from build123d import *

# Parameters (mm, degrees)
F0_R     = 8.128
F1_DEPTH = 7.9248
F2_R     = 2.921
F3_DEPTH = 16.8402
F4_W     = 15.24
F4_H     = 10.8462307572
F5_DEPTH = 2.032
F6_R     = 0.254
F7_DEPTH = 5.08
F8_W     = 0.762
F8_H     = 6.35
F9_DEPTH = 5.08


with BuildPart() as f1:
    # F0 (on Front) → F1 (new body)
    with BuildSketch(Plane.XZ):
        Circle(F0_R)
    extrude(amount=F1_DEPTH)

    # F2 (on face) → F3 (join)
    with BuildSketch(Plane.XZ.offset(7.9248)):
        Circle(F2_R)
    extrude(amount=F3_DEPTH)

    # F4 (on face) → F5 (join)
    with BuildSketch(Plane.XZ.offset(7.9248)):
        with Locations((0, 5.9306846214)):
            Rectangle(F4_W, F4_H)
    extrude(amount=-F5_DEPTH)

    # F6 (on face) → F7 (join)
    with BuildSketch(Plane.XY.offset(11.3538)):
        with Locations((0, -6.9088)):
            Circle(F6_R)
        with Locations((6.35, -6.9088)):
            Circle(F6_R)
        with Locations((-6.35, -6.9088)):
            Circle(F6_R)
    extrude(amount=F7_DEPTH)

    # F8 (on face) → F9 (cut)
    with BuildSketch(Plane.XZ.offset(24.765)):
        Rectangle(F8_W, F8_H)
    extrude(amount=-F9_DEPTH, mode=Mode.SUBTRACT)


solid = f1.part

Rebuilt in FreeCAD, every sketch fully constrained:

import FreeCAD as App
import Part
import Sketcher
from FreeCAD import Vector
Q = App.Units.Quantity

doc = App.newDocument("Part")
body = doc.addObject("PartDesign::Body", "Body")

sketch1 = body.newObject("Sketcher::SketchObject", "Sketch")
sketch1.AttachmentSupport = (doc.getObject("XZ_Plane"), [""])
sketch1.MapMode = "FlatFace"
sketch1.addGeometry(Part.Circle(Vector(0, 0, 0), Vector(0, 0, 1), 8.128), False)
sketch1.addConstraint([
    Sketcher.Constraint("Coincident", 0, 3, -1, 1),
    Sketcher.Constraint("Diameter", 0, Q("0.64 in")),
])
pad1 = body.newObject("PartDesign::Pad", "Pad")
pad1.Profile = sketch1
pad1.Length = Q("0.312 in")

sketch2 = body.newObject("Sketcher::SketchObject", "Sketch001")
sketch2.AttachmentSupport = (doc.getObject("XZ_Plane"), [""])
sketch2.MapMode = "FlatFace"
sketch2.AttachmentOffset = App.Placement(Vector(0, 0, 0.312 * 25.4), App.Rotation())
sketch2.addGeometry(Part.Circle(Vector(0, 0, 0), Vector(0, 0, 1), 2.921), False)
sketch2.addConstraint([
    Sketcher.Constraint("Coincident", 0, 3, -1, 1),
    Sketcher.Constraint("Diameter", 0, Q("0.23 in")),
])
pad2 = body.newObject("PartDesign::Pad", "Pad001")
pad2.Profile = sketch2
pad2.Length = Q("0.663 in")

sketch3 = body.newObject("Sketcher::SketchObject", "Sketch002")
sketch3.AttachmentSupport = (doc.getObject("XZ_Plane"), [""])
sketch3.MapMode = "FlatFace"
sketch3.AttachmentOffset = App.Placement(Vector(0, 0, 0.312 * 25.4), App.Rotation())
sketch3.addGeometry([
    Part.LineSegment(Vector(-7.62, 11.3538, 0), Vector(-7.62, 0.507569, 0)),
    Part.LineSegment(Vector(-7.62, 0.507569, 0), Vector(7.62, 0.507569, 0)),
    Part.LineSegment(Vector(7.62, 0.507569, 0), Vector(7.62, 11.3538, 0)),
    Part.LineSegment(Vector(7.62, 11.3538, 0), Vector(-7.62, 11.3538, 0)),
], False)
sketch3.addConstraint([
    Sketcher.Constraint("Coincident", 0, 2, 1, 1),
    Sketcher.Constraint("Coincident", 1, 2, 2, 1),
    Sketcher.Constraint("Coincident", 2, 2, 3, 1),
    Sketcher.Constraint("Coincident", 3, 2, 0, 1),
    Sketcher.Constraint("Vertical", 0),
    Sketcher.Constraint("Horizontal", 1),
    Sketcher.Constraint("Vertical", 2),
    Sketcher.Constraint("Horizontal", 3),
    Sketcher.Constraint("DistanceX", 1, 1, 1, 2, Q("0.6 in")),
    Sketcher.Constraint("DistanceX", 0, 2, -1, 1, Q("0.3 in")),
    Sketcher.Constraint("DistanceY", -1, 1, 2, 2, Q("0.447 in")),
    Sketcher.Constraint("DistanceY", 0, 2, 0, 1, 10.846231),
])
pad3 = body.newObject("PartDesign::Pad", "Pad002")
pad3.Profile = sketch3
pad3.Length = Q("0.08 in")
pad3.Reversed = True

sketch4 = body.newObject("Sketcher::SketchObject", "Sketch003")
sketch4.AttachmentSupport = (doc.getObject("XY_Plane"), [""])
sketch4.MapMode = "FlatFace"
sketch4.AttachmentOffset = App.Placement(Vector(0, 0, 0.447 * 25.4), App.Rotation())
sketch4.addGeometry([
    Part.Circle(Vector(0, -6.9088, 0), Vector(0, 0, 1), 0.254),
    Part.Circle(Vector(6.35, -6.9088, 0), Vector(0, 0, 1), 0.254),
    Part.Circle(Vector(-6.35, -6.9088, 0), Vector(0, 0, 1), 0.254),
], False)
sketch4.addConstraint([
    Sketcher.Constraint("Equal", 0, 1),
    Sketcher.Constraint("Equal", 1, 2),
    Sketcher.Constraint("Symmetric", 1, 3, 2, 3, -2),
    Sketcher.Constraint("PointOnObject", 0, 3, -2),
    Sketcher.Constraint("Horizontal", 0, 3, 1, 3),
    Sketcher.Constraint("Diameter", 0, Q("0.02 in")),
    Sketcher.Constraint("DistanceX", 2, 3, 1, 3, Q("0.5 in")),
    Sketcher.Constraint("DistanceY", 0, 3, -1, 1, Q("0.272 in")),
])
pad4 = body.newObject("PartDesign::Pad", "Pad003")
pad4.Profile = sketch4
pad4.Length = Q("0.2 in")

sketch5 = body.newObject("Sketcher::SketchObject", "Sketch004")
sketch5.AttachmentSupport = (doc.getObject("XZ_Plane"), [""])
sketch5.MapMode = "FlatFace"
sketch5.AttachmentOffset = App.Placement(Vector(0, 0, 0.975 * 25.4), App.Rotation())
sketch5.addGeometry([
    Part.LineSegment(Vector(-0.381, 3.175, 0), Vector(-0.381, -3.175, 0)),
    Part.LineSegment(Vector(-0.381, -3.175, 0), Vector(0.381, -3.175, 0)),
    Part.LineSegment(Vector(0.381, -3.175, 0), Vector(0.381, 3.175, 0)),
    Part.LineSegment(Vector(0.381, 3.175, 0), Vector(-0.381, 3.175, 0)),
], False)
sketch5.addConstraint([
    Sketcher.Constraint("Coincident", 0, 2, 1, 1),
    Sketcher.Constraint("Coincident", 1, 2, 2, 1),
    Sketcher.Constraint("Coincident", 2, 2, 3, 1),
    Sketcher.Constraint("Coincident", 3, 2, 0, 1),
    Sketcher.Constraint("Vertical", 0),
    Sketcher.Constraint("Horizontal", 1),
    Sketcher.Constraint("Vertical", 2),
    Sketcher.Constraint("Horizontal", 3),
    Sketcher.Constraint("Symmetric", 0, 2, 2, 2, -1, 1),
    Sketcher.Constraint("DistanceX", 1, 1, 1, 2, Q("0.03 in")),
    Sketcher.Constraint("DistanceY", 0, 2, 0, 1, Q("0.25 in")),
])
pocket1 = body.newObject("PartDesign::Pocket", "Pocket")
pocket1.Profile = sketch5
pocket1.Length = Q("0.2 in")

doc.recompute()
